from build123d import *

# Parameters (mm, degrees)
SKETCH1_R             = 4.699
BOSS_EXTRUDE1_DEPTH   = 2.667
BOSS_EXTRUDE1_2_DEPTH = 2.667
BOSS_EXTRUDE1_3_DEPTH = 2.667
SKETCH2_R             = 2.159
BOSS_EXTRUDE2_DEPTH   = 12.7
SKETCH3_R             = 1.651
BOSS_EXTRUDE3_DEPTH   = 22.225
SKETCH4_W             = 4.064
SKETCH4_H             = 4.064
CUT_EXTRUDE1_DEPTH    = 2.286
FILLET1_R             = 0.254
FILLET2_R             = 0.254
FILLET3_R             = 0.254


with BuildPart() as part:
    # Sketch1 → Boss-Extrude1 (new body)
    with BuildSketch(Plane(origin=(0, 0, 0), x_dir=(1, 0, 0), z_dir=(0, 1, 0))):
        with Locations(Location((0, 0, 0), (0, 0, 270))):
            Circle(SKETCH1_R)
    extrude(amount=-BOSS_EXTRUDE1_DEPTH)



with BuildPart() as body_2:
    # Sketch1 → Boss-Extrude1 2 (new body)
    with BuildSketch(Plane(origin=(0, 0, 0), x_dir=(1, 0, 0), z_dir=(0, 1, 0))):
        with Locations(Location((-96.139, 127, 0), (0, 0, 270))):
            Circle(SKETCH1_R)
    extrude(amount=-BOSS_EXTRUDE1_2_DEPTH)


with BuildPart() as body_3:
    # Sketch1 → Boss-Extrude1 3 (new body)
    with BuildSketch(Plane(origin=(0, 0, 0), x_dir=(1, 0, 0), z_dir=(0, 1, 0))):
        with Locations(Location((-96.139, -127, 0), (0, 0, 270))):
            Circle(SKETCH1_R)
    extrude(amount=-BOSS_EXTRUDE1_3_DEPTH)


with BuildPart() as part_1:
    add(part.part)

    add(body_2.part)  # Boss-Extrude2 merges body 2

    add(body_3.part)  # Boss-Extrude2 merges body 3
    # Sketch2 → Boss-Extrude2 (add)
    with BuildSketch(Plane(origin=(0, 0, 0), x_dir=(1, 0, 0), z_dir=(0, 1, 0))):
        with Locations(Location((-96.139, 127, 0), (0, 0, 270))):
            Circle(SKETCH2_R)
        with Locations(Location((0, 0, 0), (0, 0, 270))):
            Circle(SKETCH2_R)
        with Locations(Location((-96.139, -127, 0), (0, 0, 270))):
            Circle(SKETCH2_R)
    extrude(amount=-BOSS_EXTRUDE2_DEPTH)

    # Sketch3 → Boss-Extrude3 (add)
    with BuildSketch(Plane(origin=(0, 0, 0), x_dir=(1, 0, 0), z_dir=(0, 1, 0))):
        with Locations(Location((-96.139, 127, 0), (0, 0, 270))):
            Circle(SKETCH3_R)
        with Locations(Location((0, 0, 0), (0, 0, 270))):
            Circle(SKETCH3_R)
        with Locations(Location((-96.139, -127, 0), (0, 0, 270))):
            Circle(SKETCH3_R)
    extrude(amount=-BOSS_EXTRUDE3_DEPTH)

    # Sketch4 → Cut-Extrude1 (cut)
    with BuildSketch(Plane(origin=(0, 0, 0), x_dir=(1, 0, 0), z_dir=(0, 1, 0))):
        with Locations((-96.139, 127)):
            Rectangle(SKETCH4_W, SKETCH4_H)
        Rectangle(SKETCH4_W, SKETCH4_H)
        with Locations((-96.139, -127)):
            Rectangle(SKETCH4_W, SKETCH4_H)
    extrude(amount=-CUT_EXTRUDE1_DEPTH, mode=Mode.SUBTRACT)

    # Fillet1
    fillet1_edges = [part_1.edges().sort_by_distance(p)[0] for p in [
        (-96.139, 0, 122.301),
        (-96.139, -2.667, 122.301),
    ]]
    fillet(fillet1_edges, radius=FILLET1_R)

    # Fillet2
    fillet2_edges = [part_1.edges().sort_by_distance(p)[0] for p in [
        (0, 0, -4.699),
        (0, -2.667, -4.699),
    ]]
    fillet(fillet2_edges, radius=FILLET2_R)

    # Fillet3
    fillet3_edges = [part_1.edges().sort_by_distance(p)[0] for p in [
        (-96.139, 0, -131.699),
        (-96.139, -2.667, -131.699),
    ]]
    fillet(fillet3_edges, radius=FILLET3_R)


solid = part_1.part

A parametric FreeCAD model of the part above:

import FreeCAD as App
import Part
import Sketcher
from FreeCAD import Vector
Q = App.Units.Quantity


def edges_at(feature, points):
    """Names of the edges that pass closest to the given points."""
    edges = feature.Shape.Edges
    near = lambda p: min(range(len(edges)), key=lambda i: edges[i].distToShape(Part.Vertex(*p))[0])
    return sorted({f"Edge{near(p) + 1}" for p in points})


def add_polygon(sketch, points):
    """Adds a closed chain of lines whose ends are joined by coincident constraints."""
    first, n = sketch.GeometryCount, len(points)
    for a, b in zip(points, points[1:] + points[:1]):
        sketch.addGeometry(Part.LineSegment(App.Vector(*a, 0), App.Vector(*b, 0)), False)
    for i in range(n):
        sketch.addConstraint(Sketcher.Constraint("Coincident", first + i, 2, first + (i + 1) % n, 1))

doc = App.newDocument("Part")
body = doc.addObject("PartDesign::Body", "Body")

sketch1 = body.newObject("Sketcher::SketchObject", "Sketch")
sketch1.AttachmentSupport = (doc.getObject("XZ_Plane"), [""])
sketch1.MapMode = "FlatFace"
sketch1.addGeometry(Part.Circle(Vector(0, 0, 0), Vector(0, 0, 1), 4.7), False)
sketch1.addConstraint([
    Sketcher.Constraint("Coincident", 0, 3, -1, 1),
    Sketcher.Constraint("Diameter", 0, Q("0.37 in")),
])
pad1 = body.newObject("PartDesign::Pad", "Pad")
pad1.Profile = sketch1
pad1.Length = Q("0.105 in")
body2 = doc.addObject("PartDesign::Body", "Body001")

sketch2 = body2.newObject("Sketcher::SketchObject", "Sketch001")
sketch2.AttachmentSupport = (doc.getObject("XZ_Plane001"), [""])
sketch2.MapMode = "FlatFace"
sketch2.addGeometry(Part.Circle(Vector(-96.1, -127, 0), Vector(0, 0, 1), 4.7), False)
sketch2.addConstraint([
    Sketcher.Constraint("Diameter", 0, Q("0.37 in")),
    Sketcher.Constraint("DistanceY", 0, 3, -1, 1, Q("5 in")),
    Sketcher.Constraint("DistanceX", 0, 3, -1, 1, Q("3.785 in")),
])
pad2 = body2.newObject("PartDesign::Pad", "Pad001")
pad2.Profile = sketch2
pad2.Length = Q("0.105 in")
body3 = doc.addObject("PartDesign::Body", "Body002")

sketch3 = body3.newObject("Sketcher::SketchObject", "Sketch002")
sketch3.AttachmentSupport = (doc.getObject("XZ_Plane002"), [""])
sketch3.MapMode = "FlatFace"
sketch3.addGeometry(Part.Circle(Vector(-96.1, 127, 0), Vector(0, 0, 1), 4.7), False)
sketch3.addConstraint([
    Sketcher.Constraint("Diameter", 0, Q("0.37 in")),
    Sketcher.Constraint("DistanceY", -1, 1, 0, 3, Q("5 in")),
    Sketcher.Constraint("DistanceX", 0, 3, -1, 1, Q("3.785 in")),
])
pad3 = body3.newObject("PartDesign::Pad", "Pad002")
pad3.Profile = sketch3
pad3.Length = Q("0.105 in")
body.AllowCompound = True
doc.recompute()

boolean = body.newObject("PartDesign::Boolean", "Boolean")
boolean.Type = "Fuse"
boolean.addObjects([body2])
doc.recompute()

boolean2 = body.newObject("PartDesign::Boolean", "Boolean001")
boolean2.Type = "Fuse"
boolean2.addObjects([body3])

sketch4 = body.newObject("Sketcher::SketchObject", "Sketch003")
sketch4.AttachmentSupport = (doc.getObject("XZ_Plane"), [""])
sketch4.MapMode = "FlatFace"
sketch4.addGeometry([
    Part.Circle(Vector(-96.1, -127, 0), Vector(0, 0, 1), 2.2),
    Part.Circle(Vector(0, 0, 0), Vector(0, 0, 1), 2.2),
    Part.Circle(Vector(-96.1, 127, 0), Vector(0, 0, 1), 2.2),
], False)
sketch4.addConstraint([
    Sketcher.Constraint("Coincident", 1, 3, -1, 1),
    Sketcher.Constraint("Equal", 0, 1),
    Sketcher.Constraint("Equal", 1, 2),
    Sketcher.Constraint("Symmetric", 0, 3, 2, 3, -1),
    Sketcher.Constraint("Diameter", 0, Q("0.17 in")),
    Sketcher.Constraint("DistanceY", 0, 3, -1, 1, Q("5 in")),
    Sketcher.Constraint("DistanceX", 0, 3, -1, 1, Q("3.785 in")),
])
pad4 = body.newObject("PartDesign::Pad", "Pad003")
pad4.Profile = sketch4
pad4.Length = Q("0.5 in")

sketch5 = body.newObject("Sketcher::SketchObject", "Sketch004")
sketch5.AttachmentSupport = (doc.getObject("XZ_Plane"), [""])
sketch5.MapMode = "FlatFace"
sketch5.addGeometry([
    Part.Circle(Vector(-96.1, -127, 0), Vector(0, 0, 1), 1.7),
    Part.Circle(Vector(0, 0, 0), Vector(0, 0, 1), 1.7),
    Part.Circle(Vector(-96.1, 127, 0), Vector(0, 0, 1), 1.7),
], False)
sketch5.addConstraint([
    Sketcher.Constraint("Coincident", 1, 3, -1, 1),
    Sketcher.Constraint("Equal", 0, 1),
    Sketcher.Constraint("Equal", 1, 2),
    Sketcher.Constraint("Symmetric", 0, 3, 2, 3, -1),
    Sketcher.Constraint("Diameter", 0, Q("0.13 in")),
    Sketcher.Constraint("DistanceY", 0, 3, -1, 1, Q("5 in")),
    Sketcher.Constraint("DistanceX", 0, 3, -1, 1, Q("3.785 in")),
])
pad5 = body.newObject("PartDesign::Pad", "Pad004")
pad5.Profile = sketch5
pad5.Length = Q("0.875 in")

sketch6 = body.newObject("Sketcher::SketchObject", "Sketch005")
sketch6.AttachmentSupport = (doc.getObject("XZ_Plane"), [""])
sketch6.MapMode = "FlatFace"
add_polygon(sketch6, [(-98.2, -129), (-98.2, -125), (-94.1, -125), (-94.1, -129)])
add_polygon(sketch6, [(-2, -2), (-2, 2), (2, 2), (2, -2)])
add_polygon(sketch6, [(-98.2, 125), (-98.2, 129), (-94.1, 129), (-94.1, 125)])
sketch6.addConstraint([
    Sketcher.Constraint("Vertical", 0),
    Sketcher.Constraint("Horizontal", 1),
    Sketcher.Constraint("Vertical", 2),
    Sketcher.Constraint("Horizontal", 3),
    Sketcher.Constraint("Vertical", 4),
    Sketcher.Constraint("Horizontal", 5),
    Sketcher.Constraint("Vertical", 6),
    Sketcher.Constraint("Horizontal", 7),
    Sketcher.Constraint("Vertical", 8),
    Sketcher.Constraint("Horizontal", 9),
    Sketcher.Constraint("Vertical", 10),
    Sketcher.Constraint("Horizontal", 11),
    Sketcher.Constraint("Symmetric", 4, 2, 6, 2, -1, 1),
    Sketcher.Constraint("Symmetric", 3, 2, 8, 2, -1),
    Sketcher.Constraint("Symmetric", 1, 2, 10, 2, -1),
    Sketcher.Constraint("Equal", 3, 5),
    Sketcher.Constraint("Equal", 11, 0),
    Sketcher.Constraint("Equal", 2, 4),
    Sketcher.Constraint("DistanceY", 1, 2, 4, 2, Q("5 in")),
    Sketcher.Constraint("DistanceX", 1, 1, 1, 2, Q("0.16 in")),
    Sketcher.Constraint("DistanceX", 0, 2, -1, 1, Q("3.865 in")),
])
pocket1 = body.newObject("PartDesign::Pocket", "Pocket")
pocket1.Profile = sketch6
pocket1.Length = Q("0.09 in")
pocket1.Reversed = True
doc.recompute()

fillet = body.newObject("PartDesign::Fillet", "Fillet")
fillet.Base = (pocket1, edges_at(pocket1, [(-96.139, 0, 122.301), (-96.139, -2.667, 122.301)]))
fillet.Radius = Q("0.01 in")
doc.recompute()

fillet2 = body.newObject("PartDesign::Fillet", "Fillet001")
fillet2.Base = (fillet, edges_at(fillet, [(0, 0, -4.699), (0, -2.667, -4.699)]))
fillet2.Radius = Q("0.01 in")
doc.recompute()

fillet3 = body.newObject("PartDesign::Fillet", "Fillet002")
fillet3.Base = (fillet2, edges_at(fillet2, [(-96.139, 0, -131.699), (-96.139, -2.667, -131.699)]))
fillet3.Radius = Q("0.01 in")

doc.recompute()
